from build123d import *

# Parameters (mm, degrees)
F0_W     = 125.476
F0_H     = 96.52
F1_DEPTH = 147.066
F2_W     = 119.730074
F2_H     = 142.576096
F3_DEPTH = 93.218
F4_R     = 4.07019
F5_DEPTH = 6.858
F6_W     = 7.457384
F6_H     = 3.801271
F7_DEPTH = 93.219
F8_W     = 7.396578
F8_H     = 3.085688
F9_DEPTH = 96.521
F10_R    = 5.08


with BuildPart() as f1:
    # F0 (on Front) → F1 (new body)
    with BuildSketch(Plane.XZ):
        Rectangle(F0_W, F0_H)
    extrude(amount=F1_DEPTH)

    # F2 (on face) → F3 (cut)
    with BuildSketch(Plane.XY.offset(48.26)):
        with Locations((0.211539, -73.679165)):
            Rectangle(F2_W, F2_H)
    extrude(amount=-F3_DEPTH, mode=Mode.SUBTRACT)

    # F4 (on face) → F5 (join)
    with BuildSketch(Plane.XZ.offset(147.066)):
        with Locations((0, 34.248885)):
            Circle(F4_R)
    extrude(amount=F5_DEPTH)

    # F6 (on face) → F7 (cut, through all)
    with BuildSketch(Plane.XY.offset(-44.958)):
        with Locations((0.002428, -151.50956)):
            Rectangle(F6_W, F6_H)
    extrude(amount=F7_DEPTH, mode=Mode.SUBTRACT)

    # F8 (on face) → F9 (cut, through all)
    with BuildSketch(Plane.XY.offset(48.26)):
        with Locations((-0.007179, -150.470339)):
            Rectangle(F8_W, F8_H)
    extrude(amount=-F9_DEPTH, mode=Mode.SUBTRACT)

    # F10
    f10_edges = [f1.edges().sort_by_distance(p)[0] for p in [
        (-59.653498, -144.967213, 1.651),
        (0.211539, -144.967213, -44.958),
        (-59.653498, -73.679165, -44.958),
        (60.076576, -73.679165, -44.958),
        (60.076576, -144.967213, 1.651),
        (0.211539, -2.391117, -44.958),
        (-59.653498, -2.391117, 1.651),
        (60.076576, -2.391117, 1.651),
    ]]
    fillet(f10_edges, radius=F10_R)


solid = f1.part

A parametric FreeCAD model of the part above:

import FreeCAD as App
import Part
import Sketcher

V = App.Vector
Q = App.Units.Quantity


def edges_at(feature, points):
    """Names of the edges that pass closest to the given points."""
    edges = feature.Shape.Edges
    near = lambda p: min(range(len(edges)), key=lambda i: edges[i].distToShape(Part.Vertex(*p))[0])
    return sorted({f"Edge{near(p) + 1}" for p in points})

doc = App.newDocument("Part")
body = doc.addObject("PartDesign::Body", "Body")

sketch1 = doc.addObject("Sketcher::SketchObject", "Sketch")
body.addObject(sketch1)
sketch1.AttachmentSupport = (doc.XZ_Plane, [""])
sketch1.MapMode = "FlatFace"
sketch1.addGeometry(Part.LineSegment(V(-63, 48, 0), V(-63, -48, 0)), False)
sketch1.addGeometry(Part.LineSegment(V(-63, -48, 0), V(63, -48, 0)), False)
sketch1.addGeometry(Part.LineSegment(V(63, -48, 0), V(63, 48, 0)), False)
sketch1.addGeometry(Part.LineSegment(V(63, 48, 0), V(-63, 48, 0)), False)
sketch1.addConstraint(Sketcher.Constraint("Coincident", 0, 2, 1, 1))
sketch1.addConstraint(Sketcher.Constraint("Coincident", 1, 2, 2, 1))
sketch1.addConstraint(Sketcher.Constraint("Coincident", 2, 2, 3, 1))
sketch1.addConstraint(Sketcher.Constraint("Coincident", 3, 2, 0, 1))
sketch1.addConstraint(Sketcher.Constraint("Vertical", 0))
sketch1.addConstraint(Sketcher.Constraint("Horizontal", 1))
sketch1.addConstraint(Sketcher.Constraint("Vertical", 2))
sketch1.addConstraint(Sketcher.Constraint("Horizontal", 3))
sketch1.addConstraint(Sketcher.Constraint("Symmetric", 0, 2, 2, 2, -1, 1))
sketch1.addConstraint(Sketcher.Constraint("DistanceY", 0, 2, 0, 1, Q("3.8 in")))
sketch1.addConstraint(Sketcher.Constraint("DistanceX", 1, 1, 1, 2, Q("4.94 in")))
pad1 = doc.addObject("PartDesign::Pad", "Pad")
body.addObject(pad1)
pad1.Profile = sketch1
pad1.Length = Q("5.79 in")

sketch2 = doc.addObject("Sketcher::SketchObject", "Sketch001")
body.addObject(sketch2)
sketch2.AttachmentSupport = (doc.XY_Plane, [""])
sketch2.MapMode = "FlatFace"
sketch2.AttachmentOffset = App.Placement(V(0, 0, 1.9 * 25.4), App.Rotation())
sketch2.addGeometry(Part.LineSegment(V(-60, -2, 0), V(-60, -145, 0)), False)
sketch2.addGeometry(Part.LineSegment(V(-60, -145, 0), V(60, -145, 0)), False)
sketch2.addGeometry(Part.LineSegment(V(60, -145, 0), V(60, -2, 0)), False)
sketch2.addGeometry(Part.LineSegment(V(60, -2, 0), V(-60, -2, 0)), False)
sketch2.addConstraint(Sketcher.Constraint("Coincident", 0, 2, 1, 1))
sketch2.addConstraint(Sketcher.Constraint("Coincident", 1, 2, 2, 1))
sketch2.addConstraint(Sketcher.Constraint("Coincident", 2, 2, 3, 1))
sketch2.addConstraint(Sketcher.Constraint("Coincident", 3, 2, 0, 1))
sketch2.addConstraint(Sketcher.Constraint("Vertical", 0))
sketch2.addConstraint(Sketcher.Constraint("Horizontal", 1))
sketch2.addConstraint(Sketcher.Constraint("Vertical", 2))
sketch2.addConstraint(Sketcher.Constraint("Horizontal", 3))
sketch2.addConstraint(Sketcher.Constraint("DistanceX", 1, 1, 1, 2, Q("119.730074 mm")))
sketch2.addConstraint(Sketcher.Constraint("DistanceY", 0, 2, 0, 1, Q("142.576096 mm")))
sketch2.addConstraint(Sketcher.Constraint("DistanceX", 0, 2, -1, 1, Q("59.653498 mm")))
sketch2.addConstraint(Sketcher.Constraint("DistanceY", 0, 2, -1, 1, Q("144.967213 mm")))
pocket1 = doc.addObject("PartDesign::Pocket", "Pocket")
body.addObject(pocket1)
pocket1.Profile = sketch2
pocket1.Length = Q("3.67 in")

sketch3 = doc.addObject("Sketcher::SketchObject", "Sketch002")
body.addObject(sketch3)
sketch3.AttachmentSupport = (doc.XZ_Plane, [""])
sketch3.MapMode = "FlatFace"
sketch3.AttachmentOffset = App.Placement(V(0, 0, 5.79 * 25.4), App.Rotation())
sketch3.addGeometry(Part.Circle(V(0, 34.2, 0), V(0, 0, 1), 4.1), False)
sketch3.addConstraint(Sketcher.Constraint("PointOnObject", 0, 3, -2))
sketch3.addConstraint(Sketcher.Constraint("Diameter", 0, Q("8.14038 mm")))
sketch3.addConstraint(Sketcher.Constraint("DistanceY", -1, 1, 0, 3, Q("34.248885 mm")))
pad2 = doc.addObject("PartDesign::Pad", "Pad001")
body.addObject(pad2)
pad2.Profile = sketch3
pad2.Length = Q("0.27 in")

sketch4 = doc.addObject("Sketcher::SketchObject", "Sketch003")
body.addObject(sketch4)
sketch4.AttachmentSupport = (doc.XY_Plane, [""])
sketch4.MapMode = "FlatFace"
sketch4.AttachmentOffset = App.Placement(V(0, 0, -1.77 * 25.4), App.Rotation())
sketch4.addGeometry(Part.LineSegment(V(-3.7, -149.6, 0), V(-3.7, -153.4, 0)), False)
sketch4.addGeometry(Part.LineSegment(V(-3.7, -153.4, 0), V(3.7, -153.4, 0)), False)
sketch4.addGeometry(Part.LineSegment(V(3.7, -153.4, 0), V(3.7, -149.6, 0)), False)
sketch4.addGeometry(Part.LineSegment(V(3.7, -149.6, 0), V(-3.7, -149.6, 0)), False)
sketch4.addConstraint(Sketcher.Constraint("Coincident", 0, 2, 1, 1))
sketch4.addConstraint(Sketcher.Constraint("Coincident", 1, 2, 2, 1))
sketch4.addConstraint(Sketcher.Constraint("Coincident", 2, 2, 3, 1))
sketch4.addConstraint(Sketcher.Constraint("Coincident", 3, 2, 0, 1))
sketch4.addConstraint(Sketcher.Constraint("Vertical", 0))
sketch4.addConstraint(Sketcher.Constraint("Horizontal", 1))
sketch4.addConstraint(Sketcher.Constraint("Vertical", 2))
sketch4.addConstraint(Sketcher.Constraint("Horizontal", 3))
sketch4.addConstraint(Sketcher.Constraint("DistanceY", 0, 2, 0, 1, Q("3.801271 mm")))
sketch4.addConstraint(Sketcher.Constraint("DistanceX", 1, 1, 1, 2, Q("7.457384 mm")))
sketch4.addConstraint(Sketcher.Constraint("DistanceX", -1, 1, 1, 2, Q("3.73112 mm")))
sketch4.addConstraint(Sketcher.Constraint("DistanceY", 0, 2, -1, 1, Q("153.410195 mm")))
pocket2 = doc.addObject("PartDesign::Pocket", "Pocket001")
body.addObject(pocket2)
pocket2.Profile = sketch4
pocket2.Type = "ThroughAll"
pocket2.Reversed = True

sketch5 = doc.addObject("Sketcher::SketchObject", "Sketch004")
body.addObject(sketch5)
sketch5.AttachmentSupport = (doc.XY_Plane, [""])
sketch5.MapMode = "FlatFace"
sketch5.AttachmentOffset = App.Placement(V(0, 0, 1.9 * 25.4), App.Rotation())
sketch5.addGeometry(Part.LineSegment(V(-3.7, -148.9, 0), V(-3.7, -152, 0)), False)
sketch5.addGeometry(Part.LineSegment(V(-3.7, -152, 0), V(3.7, -152, 0)), False)
sketch5.addGeometry(Part.LineSegment(V(3.7, -152, 0), V(3.7, -148.9, 0)), False)
sketch5.addGeometry(Part.LineSegment(V(3.7, -148.9, 0), V(-3.7, -148.9, 0)), False)
sketch5.addConstraint(Sketcher.Constraint("Coincident", 0, 2, 1, 1))
sketch5.addConstraint(Sketcher.Constraint("Coincident", 1, 2, 2, 1))
sketch5.addConstraint(Sketcher.Constraint("Coincident", 2, 2, 3, 1))
sketch5.addConstraint(Sketcher.Constraint("Coincident", 3, 2, 0, 1))
sketch5.addConstraint(Sketcher.Constraint("Vertical", 0))
sketch5.addConstraint(Sketcher.Constraint("Horizontal", 1))
sketch5.addConstraint(Sketcher.Constraint("Vertical", 2))
sketch5.addConstraint(Sketcher.Constraint("Horizontal", 3))
sketch5.addConstraint(Sketcher.Constraint("DistanceY", 0, 2, 0, 1, Q("3.085688 mm")))
sketch5.addConstraint(Sketcher.Constraint("DistanceX", 1, 1, 1, 2, Q("7.396578 mm")))
sketch5.addConstraint(Sketcher.Constraint("DistanceX", 0, 2, -1, 1, Q("3.705468 mm")))
sketch5.addConstraint(Sketcher.Constraint("DistanceY", 0, 2, -1, 1, Q("152.013183 mm")))
pocket3 = doc.addObject("PartDesign::Pocket", "Pocket002")
body.addObject(pocket3)
pocket3.Profile = sketch5
pocket3.Type = "ThroughAll"
doc.recompute()

fillet = doc.addObject("PartDesign::Fillet", "Fillet")
body.addObject(fillet)
fillet.Base = (pocket3, edges_at(pocket3, [
    (-59.653, -144.967, 1.651),
    (0.212, -144.967, -44.958),
    (-59.653, -73.679, -44.958),
    (60.077, -73.679, -44.958),
    (60.077, -144.967, 1.651),
    (0.212, -2.391, -44.958),
    (-59.653, -2.391, 1.651),
    (60.077, -2.391, 1.651),
]))
fillet.Radius = Q("0.2 in")

doc.recompute()
